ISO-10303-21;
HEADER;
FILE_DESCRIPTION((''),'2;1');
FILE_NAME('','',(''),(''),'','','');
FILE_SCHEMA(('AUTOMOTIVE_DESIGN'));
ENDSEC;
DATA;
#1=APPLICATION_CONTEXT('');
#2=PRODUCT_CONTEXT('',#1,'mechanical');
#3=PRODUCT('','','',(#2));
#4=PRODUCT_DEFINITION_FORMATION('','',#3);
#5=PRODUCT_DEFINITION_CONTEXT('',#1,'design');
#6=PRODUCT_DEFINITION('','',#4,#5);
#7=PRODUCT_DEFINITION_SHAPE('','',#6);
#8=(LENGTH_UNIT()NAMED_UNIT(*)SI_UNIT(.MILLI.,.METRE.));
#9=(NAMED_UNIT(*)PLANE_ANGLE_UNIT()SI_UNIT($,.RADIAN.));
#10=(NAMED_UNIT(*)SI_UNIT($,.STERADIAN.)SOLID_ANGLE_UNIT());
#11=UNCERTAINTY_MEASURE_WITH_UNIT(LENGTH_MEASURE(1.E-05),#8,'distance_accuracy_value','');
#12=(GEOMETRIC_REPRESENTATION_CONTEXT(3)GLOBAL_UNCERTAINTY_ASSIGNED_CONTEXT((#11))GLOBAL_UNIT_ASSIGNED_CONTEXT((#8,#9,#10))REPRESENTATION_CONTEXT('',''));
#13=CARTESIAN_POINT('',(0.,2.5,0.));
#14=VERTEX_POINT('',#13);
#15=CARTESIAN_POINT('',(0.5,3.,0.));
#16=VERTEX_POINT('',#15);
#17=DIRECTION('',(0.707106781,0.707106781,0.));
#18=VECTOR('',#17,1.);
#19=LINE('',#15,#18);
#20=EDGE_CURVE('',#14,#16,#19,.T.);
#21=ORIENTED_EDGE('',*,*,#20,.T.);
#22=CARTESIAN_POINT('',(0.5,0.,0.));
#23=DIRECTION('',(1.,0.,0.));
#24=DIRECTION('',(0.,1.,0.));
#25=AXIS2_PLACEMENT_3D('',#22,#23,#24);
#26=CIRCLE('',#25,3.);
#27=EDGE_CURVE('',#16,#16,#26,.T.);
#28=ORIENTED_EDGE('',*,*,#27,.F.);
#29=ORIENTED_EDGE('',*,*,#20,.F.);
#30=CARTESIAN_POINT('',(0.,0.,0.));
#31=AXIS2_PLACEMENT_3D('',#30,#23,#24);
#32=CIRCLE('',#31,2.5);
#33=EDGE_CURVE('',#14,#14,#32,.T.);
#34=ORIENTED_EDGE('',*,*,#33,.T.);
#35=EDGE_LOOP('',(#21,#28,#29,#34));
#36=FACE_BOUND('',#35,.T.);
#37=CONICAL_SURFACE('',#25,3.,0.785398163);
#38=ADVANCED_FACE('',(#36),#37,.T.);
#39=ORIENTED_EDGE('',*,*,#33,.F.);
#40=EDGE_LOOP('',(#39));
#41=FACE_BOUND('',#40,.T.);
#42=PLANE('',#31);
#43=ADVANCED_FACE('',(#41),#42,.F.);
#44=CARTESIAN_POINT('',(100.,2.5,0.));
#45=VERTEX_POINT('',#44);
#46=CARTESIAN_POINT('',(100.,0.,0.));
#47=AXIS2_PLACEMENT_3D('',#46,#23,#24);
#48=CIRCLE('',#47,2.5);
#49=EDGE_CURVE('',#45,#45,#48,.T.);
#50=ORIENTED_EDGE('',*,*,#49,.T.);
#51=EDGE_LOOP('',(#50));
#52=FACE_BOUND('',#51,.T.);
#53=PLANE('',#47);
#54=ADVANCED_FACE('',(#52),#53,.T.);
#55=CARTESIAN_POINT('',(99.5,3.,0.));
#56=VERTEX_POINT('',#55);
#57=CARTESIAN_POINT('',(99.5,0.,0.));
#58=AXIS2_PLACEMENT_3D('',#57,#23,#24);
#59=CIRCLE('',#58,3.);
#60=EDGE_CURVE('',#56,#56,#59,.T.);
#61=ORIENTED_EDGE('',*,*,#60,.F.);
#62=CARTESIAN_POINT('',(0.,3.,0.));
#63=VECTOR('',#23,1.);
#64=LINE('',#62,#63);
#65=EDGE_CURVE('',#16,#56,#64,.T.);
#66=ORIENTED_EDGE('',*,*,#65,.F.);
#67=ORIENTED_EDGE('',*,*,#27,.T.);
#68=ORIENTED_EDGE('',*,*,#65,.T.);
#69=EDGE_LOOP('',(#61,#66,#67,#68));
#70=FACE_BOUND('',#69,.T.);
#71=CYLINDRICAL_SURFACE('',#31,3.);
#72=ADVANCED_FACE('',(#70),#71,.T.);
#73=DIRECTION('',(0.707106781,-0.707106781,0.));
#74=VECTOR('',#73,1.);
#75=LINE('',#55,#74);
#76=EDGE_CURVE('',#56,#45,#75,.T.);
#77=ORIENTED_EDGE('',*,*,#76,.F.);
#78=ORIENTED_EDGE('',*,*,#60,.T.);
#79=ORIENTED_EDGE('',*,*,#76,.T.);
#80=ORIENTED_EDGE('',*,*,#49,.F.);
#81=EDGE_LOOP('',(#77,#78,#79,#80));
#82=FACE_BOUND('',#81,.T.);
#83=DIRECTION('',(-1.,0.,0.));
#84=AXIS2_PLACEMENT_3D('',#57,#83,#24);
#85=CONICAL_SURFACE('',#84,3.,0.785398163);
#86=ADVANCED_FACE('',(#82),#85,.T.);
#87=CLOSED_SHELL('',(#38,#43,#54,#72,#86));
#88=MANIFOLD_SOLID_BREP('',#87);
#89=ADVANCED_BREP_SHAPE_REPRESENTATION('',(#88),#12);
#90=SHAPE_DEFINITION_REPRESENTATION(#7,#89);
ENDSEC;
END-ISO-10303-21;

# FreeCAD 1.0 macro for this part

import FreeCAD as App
import Part
import Sketcher
from FreeCAD import Vector
Q = App.Units.Quantity


def edges_at(feature, points):
    """Names of the edges that pass closest to the given points."""
    edges = feature.Shape.Edges
    near = lambda p: min(range(len(edges)), key=lambda i: edges[i].distToShape(Part.Vertex(*p))[0])
    return sorted({f"Edge{near(p) + 1}" for p in points})


def add_polygon(sketch, points):
    """Adds a closed chain of lines whose ends are joined by coincident constraints."""
    first, n = sketch.GeometryCount, len(points)
    for a, b in zip(points, points[1:] + points[:1]):
        sketch.addGeometry(Part.LineSegment(App.Vector(*a, 0), App.Vector(*b, 0)), False)
    for i in range(n):
        sketch.addConstraint(Sketcher.Constraint("Coincident", first + i, 2, first + (i + 1) % n, 1))

doc = App.newDocument("Part")
body = doc.addObject("PartDesign::Body", "Body")

# Sketch on XY plane
sketch1 = body.newObject("Sketcher::SketchObject", "Sketch")
sketch1.AttachmentSupport = (doc.getObject("XY_Plane"), [""])
sketch1.MapMode = "FlatFace"
add_polygon(sketch1, [(0, 3), (0, 0), (100, 0), (100, 3)])  # lines 0-3
sketch1.addConstraint(Sketcher.Constraint("Vertical", 0))
sketch1.addConstraint(Sketcher.Constraint("Horizontal", 1))
sketch1.addConstraint(Sketcher.Constraint("Vertical", 2))
sketch1.addConstraint(Sketcher.Constraint("Horizontal", 3))
sketch1.addConstraint(Sketcher.Constraint("Coincident", 0, 2, -1, 1))
sketch1.addConstraint(Sketcher.Constraint("DistanceX", 1, 1, 1, 2, Q("100 mm")))
sketch1.addConstraint(Sketcher.Constraint("DistanceY", 0, 2, 0, 1, Q("3 mm")))
revolution = body.newObject("PartDesign::Revolution", "Revolution")
revolution.Profile = sketch1
revolution.ReferenceAxis = (sketch1, ["H_Axis"])
revolution.Angle = 360
doc.recompute()

chamfer = body.newObject("PartDesign::Chamfer", "Chamfer")
chamfer.Base = (revolution, edges_at(revolution, [(0, -3, 0)]))
chamfer.Size = 0.5
doc.recompute()

chamfer2 = body.newObject("PartDesign::Chamfer", "Chamfer001")
chamfer2.Base = (chamfer, edges_at(chamfer, [(100, -3, 0)]))
chamfer2.Size = 0.5

doc.recompute()
